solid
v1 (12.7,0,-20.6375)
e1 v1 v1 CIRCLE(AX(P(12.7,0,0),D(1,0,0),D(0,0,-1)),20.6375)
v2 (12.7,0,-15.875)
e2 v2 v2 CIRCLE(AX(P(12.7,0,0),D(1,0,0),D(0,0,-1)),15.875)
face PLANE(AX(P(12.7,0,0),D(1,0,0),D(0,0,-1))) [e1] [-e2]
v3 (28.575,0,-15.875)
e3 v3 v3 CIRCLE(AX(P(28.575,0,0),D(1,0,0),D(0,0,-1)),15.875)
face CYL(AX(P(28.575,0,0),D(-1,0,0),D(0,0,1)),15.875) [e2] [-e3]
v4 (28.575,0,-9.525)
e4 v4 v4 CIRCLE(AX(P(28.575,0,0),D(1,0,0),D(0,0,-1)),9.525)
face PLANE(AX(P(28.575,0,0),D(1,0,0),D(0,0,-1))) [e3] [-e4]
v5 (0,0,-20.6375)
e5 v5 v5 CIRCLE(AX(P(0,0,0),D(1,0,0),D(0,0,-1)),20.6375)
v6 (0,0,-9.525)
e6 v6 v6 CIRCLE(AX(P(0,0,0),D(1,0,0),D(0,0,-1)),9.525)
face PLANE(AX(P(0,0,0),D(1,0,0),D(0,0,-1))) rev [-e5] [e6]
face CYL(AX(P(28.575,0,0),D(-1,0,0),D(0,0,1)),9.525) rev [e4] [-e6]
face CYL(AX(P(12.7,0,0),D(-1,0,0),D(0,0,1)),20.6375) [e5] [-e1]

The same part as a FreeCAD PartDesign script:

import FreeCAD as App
import Part
import Sketcher
from FreeCAD import Vector
Q = App.Units.Quantity

doc = App.newDocument("Part")
body = doc.addObject("PartDesign::Body", "Body")

sketch1 = body.newObject("Sketcher::SketchObject", "Sketch")
sketch1.AttachmentSupport = (doc.getObject("YZ_Plane"), [""])
sketch1.MapMode = "FlatFace"
sketch1.addGeometry(Part.Circle(Vector(0, 0, 0), Vector(0, 0, 1), 16), False)
sketch1.addGeometry(Part.Circle(Vector(0, 0, 0), Vector(0, 0, 1), 10), False)
sketch1.addConstraint(Sketcher.Constraint("Coincident", 0, 3, -1, 1))
sketch1.addConstraint(Sketcher.Constraint("Coincident", 1, 3, -1, 1))
sketch1.addConstraint(Sketcher.Constraint("Diameter", 0, Q("1.25 in")))
sketch1.addConstraint(Sketcher.Constraint("Diameter", 1, Q("0.75 in")))
pad1 = body.newObject("PartDesign::Pad", "Pad")
pad1.Profile = sketch1
pad1.Length = Q("1.125 in")

sketch2 = body.newObject("Sketcher::SketchObject", "Sketch001")
sketch2.AttachmentSupport = (doc.getObject("YZ_Plane"), [""])
sketch2.MapMode = "FlatFace"
sketch2.addGeometry(Part.Circle(Vector(0, 0, 0), Vector(0, 0, 1), 21), False)
sketch2.addGeometry(Part.Circle(Vector(0, 0, 0), Vector(0, 0, 1), 16), False)
sketch2.addConstraint(Sketcher.Constraint("Coincident", 0, 3, -1, 1))
sketch2.addConstraint(Sketcher.Constraint("Coincident", 1, 3, -1, 1))
sketch2.addConstraint(Sketcher.Constraint("Diameter", 1, Q("1.25 in")))
sketch2.addConstraint(Sketcher.Constraint("Diameter", 0, Q("1.625 in")))
pad2 = body.newObject("PartDesign::Pad", "Pad001")
pad2.Profile = sketch2
pad2.Length = Q("0.5 in")

doc.recompute()
